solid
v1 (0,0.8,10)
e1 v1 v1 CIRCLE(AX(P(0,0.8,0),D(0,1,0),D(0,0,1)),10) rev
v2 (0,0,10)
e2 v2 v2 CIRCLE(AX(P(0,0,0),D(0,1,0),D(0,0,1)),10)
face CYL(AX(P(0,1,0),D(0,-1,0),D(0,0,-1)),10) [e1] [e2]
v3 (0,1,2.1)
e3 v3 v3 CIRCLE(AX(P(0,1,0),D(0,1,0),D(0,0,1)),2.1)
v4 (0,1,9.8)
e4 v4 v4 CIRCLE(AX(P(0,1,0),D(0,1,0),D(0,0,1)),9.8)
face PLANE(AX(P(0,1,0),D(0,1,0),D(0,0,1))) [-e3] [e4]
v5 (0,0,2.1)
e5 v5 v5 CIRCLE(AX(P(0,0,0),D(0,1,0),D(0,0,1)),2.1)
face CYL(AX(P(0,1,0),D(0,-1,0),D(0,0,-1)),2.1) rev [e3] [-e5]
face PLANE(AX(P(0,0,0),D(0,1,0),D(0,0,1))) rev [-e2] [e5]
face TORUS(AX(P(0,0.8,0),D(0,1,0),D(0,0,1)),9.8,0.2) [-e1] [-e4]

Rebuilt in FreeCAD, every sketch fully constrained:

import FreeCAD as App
import Part
import Sketcher

V = App.Vector
Q = App.Units.Quantity


def edges_at(feature, points):
    """Names of the edges that pass closest to the given points."""
    edges = feature.Shape.Edges
    near = lambda p: min(range(len(edges)), key=lambda i: edges[i].distToShape(Part.Vertex(*p))[0])
    return sorted({f"Edge{near(p) + 1}" for p in points})

doc = App.newDocument("Part")
body = doc.addObject("PartDesign::Body", "Body")

# Sketch on XZ plane
sketch1 = body.newObject("Sketcher::SketchObject", "Sketch")
sketch1.AttachmentSupport = (doc.getObject("XZ_Plane"), [""])
sketch1.MapMode = "FlatFace"
sketch1.addGeometry([
    Part.Circle(V(0, 0, 0), V(0, 0, 1), 10),
    Part.Circle(V(0, 0, 0), V(0, 0, 1), 2.1),
], False)
sketch1.addConstraint([
    Sketcher.Constraint("Coincident", 0, 3, -1, 1),
    Sketcher.Constraint("Coincident", 1, 3, -1, 1),
    Sketcher.Constraint("Diameter", 0, Q("20 mm")),
    Sketcher.Constraint("Diameter", 1, Q("4.2 mm")),
])
pad1 = body.newObject("PartDesign::Pad", "Pad")
pad1.Profile = sketch1
pad1.Length = 1
pad1.Reversed = True
doc.recompute()

fillet = body.newObject("PartDesign::Fillet", "Fillet")
fillet.Base = (pad1, edges_at(pad1, [(0, 1, -10)]))
fillet.Radius = 0.2

doc.recompute()
